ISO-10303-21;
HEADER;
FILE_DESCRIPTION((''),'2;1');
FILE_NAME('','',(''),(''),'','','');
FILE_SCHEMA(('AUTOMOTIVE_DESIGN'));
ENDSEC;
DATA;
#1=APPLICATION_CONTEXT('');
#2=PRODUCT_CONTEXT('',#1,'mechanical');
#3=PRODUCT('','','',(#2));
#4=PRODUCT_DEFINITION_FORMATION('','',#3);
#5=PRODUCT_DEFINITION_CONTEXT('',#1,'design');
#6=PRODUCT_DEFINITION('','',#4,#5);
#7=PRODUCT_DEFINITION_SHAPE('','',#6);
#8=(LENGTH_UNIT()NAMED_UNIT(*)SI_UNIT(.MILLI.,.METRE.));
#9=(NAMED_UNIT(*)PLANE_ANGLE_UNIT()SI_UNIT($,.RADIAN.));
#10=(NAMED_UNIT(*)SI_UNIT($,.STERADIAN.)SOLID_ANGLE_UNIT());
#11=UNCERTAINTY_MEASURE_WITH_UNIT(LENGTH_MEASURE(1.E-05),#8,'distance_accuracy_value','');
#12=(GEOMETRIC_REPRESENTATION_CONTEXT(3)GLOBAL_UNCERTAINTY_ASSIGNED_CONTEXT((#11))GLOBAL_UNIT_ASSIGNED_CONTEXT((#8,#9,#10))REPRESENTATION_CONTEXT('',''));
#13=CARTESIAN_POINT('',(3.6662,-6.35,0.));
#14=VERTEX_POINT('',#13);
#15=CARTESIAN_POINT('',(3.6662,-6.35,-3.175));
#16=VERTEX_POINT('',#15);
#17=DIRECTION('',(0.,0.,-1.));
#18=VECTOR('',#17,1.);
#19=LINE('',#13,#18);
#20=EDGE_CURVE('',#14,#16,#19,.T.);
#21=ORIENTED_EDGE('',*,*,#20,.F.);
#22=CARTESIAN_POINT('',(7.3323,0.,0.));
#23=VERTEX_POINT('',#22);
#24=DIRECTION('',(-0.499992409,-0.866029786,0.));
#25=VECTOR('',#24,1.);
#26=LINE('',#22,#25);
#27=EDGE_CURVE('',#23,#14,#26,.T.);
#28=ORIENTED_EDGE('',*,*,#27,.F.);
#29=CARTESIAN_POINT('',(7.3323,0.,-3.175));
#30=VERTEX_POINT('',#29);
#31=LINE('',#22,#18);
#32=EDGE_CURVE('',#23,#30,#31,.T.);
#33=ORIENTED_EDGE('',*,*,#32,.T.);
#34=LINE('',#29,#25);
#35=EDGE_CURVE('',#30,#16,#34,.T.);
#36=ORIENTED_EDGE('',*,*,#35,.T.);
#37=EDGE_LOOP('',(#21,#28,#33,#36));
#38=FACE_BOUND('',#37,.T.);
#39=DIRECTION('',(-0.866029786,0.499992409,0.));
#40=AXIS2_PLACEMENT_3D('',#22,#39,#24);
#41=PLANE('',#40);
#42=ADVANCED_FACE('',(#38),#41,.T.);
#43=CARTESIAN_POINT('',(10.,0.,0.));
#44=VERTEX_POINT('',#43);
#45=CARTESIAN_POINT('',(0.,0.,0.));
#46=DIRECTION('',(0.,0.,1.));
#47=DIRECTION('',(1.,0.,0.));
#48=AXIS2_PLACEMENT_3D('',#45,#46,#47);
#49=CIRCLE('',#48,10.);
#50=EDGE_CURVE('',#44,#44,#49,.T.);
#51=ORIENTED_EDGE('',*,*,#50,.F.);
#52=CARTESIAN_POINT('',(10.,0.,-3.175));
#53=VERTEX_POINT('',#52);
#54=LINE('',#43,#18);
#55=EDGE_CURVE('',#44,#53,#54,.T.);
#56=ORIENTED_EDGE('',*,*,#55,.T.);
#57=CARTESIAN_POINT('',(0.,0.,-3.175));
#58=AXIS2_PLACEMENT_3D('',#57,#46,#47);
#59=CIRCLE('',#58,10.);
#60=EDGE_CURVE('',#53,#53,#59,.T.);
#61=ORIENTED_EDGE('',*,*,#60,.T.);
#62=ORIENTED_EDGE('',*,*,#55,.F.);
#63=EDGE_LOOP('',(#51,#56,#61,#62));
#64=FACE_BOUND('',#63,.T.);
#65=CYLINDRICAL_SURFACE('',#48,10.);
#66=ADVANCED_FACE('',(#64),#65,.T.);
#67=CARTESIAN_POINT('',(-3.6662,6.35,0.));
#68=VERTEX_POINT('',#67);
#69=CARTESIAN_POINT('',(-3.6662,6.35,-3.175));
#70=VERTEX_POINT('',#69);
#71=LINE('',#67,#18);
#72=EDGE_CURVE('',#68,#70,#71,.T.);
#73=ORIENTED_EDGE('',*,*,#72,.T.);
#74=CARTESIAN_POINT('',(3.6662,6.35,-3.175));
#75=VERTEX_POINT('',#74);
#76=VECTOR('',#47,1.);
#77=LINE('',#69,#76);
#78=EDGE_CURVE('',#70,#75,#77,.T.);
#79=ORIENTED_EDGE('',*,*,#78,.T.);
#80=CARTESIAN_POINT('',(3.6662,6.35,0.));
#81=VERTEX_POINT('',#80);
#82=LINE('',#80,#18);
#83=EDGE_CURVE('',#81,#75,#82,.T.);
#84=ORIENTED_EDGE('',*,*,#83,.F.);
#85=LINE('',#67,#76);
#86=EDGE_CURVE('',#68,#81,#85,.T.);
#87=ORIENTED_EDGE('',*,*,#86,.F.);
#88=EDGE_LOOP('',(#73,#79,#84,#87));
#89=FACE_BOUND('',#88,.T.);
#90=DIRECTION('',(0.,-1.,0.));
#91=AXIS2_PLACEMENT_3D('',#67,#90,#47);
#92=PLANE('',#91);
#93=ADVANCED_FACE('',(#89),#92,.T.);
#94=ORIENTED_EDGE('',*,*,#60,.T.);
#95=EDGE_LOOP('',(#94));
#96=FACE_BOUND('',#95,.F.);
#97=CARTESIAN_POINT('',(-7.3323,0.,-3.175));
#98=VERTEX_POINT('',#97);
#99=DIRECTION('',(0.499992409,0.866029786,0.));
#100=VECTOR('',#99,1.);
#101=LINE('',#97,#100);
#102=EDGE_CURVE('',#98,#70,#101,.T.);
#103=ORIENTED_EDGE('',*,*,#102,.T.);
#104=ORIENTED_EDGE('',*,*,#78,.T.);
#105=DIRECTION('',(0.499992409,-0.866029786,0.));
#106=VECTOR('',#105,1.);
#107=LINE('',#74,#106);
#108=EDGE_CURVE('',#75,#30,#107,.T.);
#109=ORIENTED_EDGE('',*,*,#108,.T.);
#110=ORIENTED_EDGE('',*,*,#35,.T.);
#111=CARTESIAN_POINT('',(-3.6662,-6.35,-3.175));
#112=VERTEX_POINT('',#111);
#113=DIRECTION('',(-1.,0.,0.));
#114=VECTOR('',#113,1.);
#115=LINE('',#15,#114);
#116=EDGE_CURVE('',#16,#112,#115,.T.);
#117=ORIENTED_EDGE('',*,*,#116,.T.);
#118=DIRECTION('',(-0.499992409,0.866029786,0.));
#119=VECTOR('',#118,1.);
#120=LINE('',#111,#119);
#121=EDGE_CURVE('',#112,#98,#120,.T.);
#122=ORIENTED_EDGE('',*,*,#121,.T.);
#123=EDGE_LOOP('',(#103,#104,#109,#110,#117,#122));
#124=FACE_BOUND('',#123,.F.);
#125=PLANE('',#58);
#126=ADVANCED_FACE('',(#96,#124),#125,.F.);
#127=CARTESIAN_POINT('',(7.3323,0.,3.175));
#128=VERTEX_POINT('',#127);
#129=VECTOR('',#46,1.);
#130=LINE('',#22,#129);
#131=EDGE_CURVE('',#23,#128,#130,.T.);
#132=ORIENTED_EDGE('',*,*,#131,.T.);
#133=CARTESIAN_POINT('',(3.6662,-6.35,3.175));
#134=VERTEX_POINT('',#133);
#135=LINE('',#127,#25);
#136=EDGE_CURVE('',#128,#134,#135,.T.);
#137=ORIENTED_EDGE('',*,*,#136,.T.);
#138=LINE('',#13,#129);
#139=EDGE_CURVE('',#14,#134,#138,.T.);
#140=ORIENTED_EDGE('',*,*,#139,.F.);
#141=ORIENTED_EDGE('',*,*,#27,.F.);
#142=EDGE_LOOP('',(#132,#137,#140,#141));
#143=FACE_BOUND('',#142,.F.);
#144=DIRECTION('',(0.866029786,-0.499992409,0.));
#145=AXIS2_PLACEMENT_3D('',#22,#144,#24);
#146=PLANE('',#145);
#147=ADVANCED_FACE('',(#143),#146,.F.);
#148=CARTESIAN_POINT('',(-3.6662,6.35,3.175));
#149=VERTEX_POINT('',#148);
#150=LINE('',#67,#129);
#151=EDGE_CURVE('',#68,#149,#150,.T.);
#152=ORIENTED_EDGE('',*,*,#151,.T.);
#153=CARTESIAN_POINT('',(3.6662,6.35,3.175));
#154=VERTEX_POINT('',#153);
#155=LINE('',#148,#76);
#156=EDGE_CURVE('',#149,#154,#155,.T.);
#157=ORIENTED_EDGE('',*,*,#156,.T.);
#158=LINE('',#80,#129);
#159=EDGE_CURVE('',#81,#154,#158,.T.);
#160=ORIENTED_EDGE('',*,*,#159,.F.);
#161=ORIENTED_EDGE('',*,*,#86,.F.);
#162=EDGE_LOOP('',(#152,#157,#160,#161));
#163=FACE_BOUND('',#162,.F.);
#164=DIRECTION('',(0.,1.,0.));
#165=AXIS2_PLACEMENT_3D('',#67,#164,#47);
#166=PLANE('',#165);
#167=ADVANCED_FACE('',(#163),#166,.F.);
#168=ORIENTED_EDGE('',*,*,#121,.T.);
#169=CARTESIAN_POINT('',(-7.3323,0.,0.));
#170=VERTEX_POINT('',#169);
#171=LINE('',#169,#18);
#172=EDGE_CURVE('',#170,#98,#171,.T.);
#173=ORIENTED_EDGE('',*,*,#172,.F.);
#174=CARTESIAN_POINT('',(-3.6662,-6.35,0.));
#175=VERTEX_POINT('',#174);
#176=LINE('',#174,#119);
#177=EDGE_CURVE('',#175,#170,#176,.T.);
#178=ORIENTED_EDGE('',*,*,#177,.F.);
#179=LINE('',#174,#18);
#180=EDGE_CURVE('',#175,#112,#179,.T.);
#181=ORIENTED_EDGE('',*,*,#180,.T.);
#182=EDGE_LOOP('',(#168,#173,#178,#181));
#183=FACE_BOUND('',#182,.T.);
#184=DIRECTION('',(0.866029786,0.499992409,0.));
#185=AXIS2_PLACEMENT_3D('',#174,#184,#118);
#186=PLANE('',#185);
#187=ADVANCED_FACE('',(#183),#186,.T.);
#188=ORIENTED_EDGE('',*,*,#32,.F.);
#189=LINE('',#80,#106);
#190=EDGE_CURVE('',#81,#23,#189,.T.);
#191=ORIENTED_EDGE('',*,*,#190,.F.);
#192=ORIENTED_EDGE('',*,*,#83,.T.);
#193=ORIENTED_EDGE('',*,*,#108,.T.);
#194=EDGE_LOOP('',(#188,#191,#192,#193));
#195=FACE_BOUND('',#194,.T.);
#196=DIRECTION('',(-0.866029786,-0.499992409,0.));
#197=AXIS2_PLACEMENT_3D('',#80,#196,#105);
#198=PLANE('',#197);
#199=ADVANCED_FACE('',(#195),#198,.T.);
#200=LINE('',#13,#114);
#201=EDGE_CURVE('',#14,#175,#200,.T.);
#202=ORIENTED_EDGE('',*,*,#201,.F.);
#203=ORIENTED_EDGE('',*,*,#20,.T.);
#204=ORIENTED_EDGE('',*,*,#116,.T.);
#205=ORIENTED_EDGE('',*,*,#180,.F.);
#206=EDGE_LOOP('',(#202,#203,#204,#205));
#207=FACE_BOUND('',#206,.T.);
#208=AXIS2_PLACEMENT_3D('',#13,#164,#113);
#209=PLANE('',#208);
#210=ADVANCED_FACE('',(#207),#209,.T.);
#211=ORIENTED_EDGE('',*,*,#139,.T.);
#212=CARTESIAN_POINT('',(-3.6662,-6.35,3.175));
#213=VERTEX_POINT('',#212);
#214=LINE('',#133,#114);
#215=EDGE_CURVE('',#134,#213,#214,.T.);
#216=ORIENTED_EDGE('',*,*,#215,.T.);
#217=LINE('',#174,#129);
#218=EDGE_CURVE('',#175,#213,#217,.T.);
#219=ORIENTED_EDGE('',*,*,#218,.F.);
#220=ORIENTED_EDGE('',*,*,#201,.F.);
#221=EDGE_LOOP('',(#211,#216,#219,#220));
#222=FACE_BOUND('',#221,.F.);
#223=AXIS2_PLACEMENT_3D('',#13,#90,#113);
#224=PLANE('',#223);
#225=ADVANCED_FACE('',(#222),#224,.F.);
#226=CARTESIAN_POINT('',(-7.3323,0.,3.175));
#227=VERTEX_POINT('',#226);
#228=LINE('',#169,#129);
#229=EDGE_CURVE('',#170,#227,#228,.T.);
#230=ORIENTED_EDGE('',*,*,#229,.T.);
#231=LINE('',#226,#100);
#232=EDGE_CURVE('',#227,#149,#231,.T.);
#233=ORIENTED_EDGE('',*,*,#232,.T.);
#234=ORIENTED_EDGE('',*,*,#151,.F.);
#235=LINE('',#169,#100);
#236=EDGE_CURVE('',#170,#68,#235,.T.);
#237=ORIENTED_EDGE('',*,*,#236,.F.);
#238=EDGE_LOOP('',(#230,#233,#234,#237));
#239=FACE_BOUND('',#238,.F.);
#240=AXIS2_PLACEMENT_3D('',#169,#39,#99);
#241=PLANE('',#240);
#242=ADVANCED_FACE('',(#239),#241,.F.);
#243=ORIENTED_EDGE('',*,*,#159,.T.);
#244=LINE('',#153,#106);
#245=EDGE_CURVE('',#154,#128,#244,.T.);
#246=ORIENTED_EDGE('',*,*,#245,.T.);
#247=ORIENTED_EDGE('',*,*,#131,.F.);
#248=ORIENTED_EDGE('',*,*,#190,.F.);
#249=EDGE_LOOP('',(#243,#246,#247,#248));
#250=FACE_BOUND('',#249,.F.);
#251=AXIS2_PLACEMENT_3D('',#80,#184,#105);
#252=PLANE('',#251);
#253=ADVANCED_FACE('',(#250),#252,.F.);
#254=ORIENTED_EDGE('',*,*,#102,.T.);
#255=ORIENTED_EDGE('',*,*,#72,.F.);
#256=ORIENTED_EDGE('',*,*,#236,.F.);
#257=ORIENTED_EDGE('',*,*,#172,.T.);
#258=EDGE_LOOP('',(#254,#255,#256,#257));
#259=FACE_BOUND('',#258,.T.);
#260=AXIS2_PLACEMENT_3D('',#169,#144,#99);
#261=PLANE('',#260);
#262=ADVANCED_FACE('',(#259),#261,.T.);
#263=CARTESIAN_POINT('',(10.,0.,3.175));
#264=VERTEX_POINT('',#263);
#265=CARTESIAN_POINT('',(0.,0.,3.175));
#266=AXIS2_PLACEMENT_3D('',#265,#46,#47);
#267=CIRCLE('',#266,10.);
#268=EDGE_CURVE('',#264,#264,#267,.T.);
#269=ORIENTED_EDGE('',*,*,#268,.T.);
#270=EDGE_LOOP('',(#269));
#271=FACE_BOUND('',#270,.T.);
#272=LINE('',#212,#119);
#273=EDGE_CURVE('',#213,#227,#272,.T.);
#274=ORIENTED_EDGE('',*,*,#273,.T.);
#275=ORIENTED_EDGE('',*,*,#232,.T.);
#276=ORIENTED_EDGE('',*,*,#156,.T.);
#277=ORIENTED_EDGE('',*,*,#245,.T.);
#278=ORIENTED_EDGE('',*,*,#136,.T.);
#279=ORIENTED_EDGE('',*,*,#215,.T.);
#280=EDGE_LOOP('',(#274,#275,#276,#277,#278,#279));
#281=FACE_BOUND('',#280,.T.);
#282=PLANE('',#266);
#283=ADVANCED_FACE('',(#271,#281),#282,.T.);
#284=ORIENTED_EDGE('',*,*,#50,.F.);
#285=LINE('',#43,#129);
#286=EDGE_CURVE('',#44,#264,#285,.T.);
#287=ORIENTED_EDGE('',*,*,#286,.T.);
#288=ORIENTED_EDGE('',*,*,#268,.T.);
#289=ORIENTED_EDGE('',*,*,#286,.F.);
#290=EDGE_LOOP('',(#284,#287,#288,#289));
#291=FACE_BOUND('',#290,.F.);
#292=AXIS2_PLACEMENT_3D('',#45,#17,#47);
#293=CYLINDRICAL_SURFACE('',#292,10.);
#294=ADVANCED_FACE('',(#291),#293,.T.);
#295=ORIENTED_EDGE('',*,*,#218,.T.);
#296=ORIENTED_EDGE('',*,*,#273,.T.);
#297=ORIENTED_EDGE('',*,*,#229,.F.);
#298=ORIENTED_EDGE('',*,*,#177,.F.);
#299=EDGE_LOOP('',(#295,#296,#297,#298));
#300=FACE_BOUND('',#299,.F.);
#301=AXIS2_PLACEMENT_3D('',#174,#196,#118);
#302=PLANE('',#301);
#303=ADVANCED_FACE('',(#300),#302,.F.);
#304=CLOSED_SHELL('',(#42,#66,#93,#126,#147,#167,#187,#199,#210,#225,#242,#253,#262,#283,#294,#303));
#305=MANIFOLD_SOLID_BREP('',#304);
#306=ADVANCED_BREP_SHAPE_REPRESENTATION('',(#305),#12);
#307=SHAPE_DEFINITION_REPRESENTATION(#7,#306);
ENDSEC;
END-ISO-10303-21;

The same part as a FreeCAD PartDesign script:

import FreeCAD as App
import Part
import Sketcher
Q = App.Units.Quantity


def add_polygon(sketch, points):
    """Adds a closed chain of lines whose ends are joined by coincident constraints."""
    first, n = sketch.GeometryCount, len(points)
    for a, b in zip(points, points[1:] + points[:1]):
        sketch.addGeometry(Part.LineSegment(App.Vector(*a, 0), App.Vector(*b, 0)), False)
    for i in range(n):
        sketch.addConstraint(Sketcher.Constraint("Coincident", first + i, 2, first + (i + 1) % n, 1))

doc = App.newDocument("Part")
body = doc.addObject("PartDesign::Body", "Body")

sketch1 = body.newObject("Sketcher::SketchObject", "Sketch")
sketch1.AttachmentSupport = (doc.getObject("XY_Plane"), [""])
sketch1.MapMode = "FlatFace"
sketch1.addGeometry(Part.Circle(App.Vector(0, 0, 0), App.Vector(0, 0, 1), 10), False)
add_polygon(sketch1, [(-7, 0), (-4, 6), (4, 6), (7, 0), (4, -6), (-4, -6)])
sketch1.addConstraint([
    Sketcher.Constraint("Horizontal", 2),
    Sketcher.Constraint("Horizontal", 5),
    Sketcher.Constraint("Coincident", 0, 3, -1, 1),
    Sketcher.Constraint("Symmetric", 1, 2, 4, 2, -1, 1),
    Sketcher.Constraint("Symmetric", 3, 2, 6, 2, -1, 1),
    Sketcher.Constraint("PointOnObject", 3, 2, -1),
    Sketcher.Constraint("Parallel", 3, 6),
    Sketcher.Constraint("Vertical", 2, 2, 4, 2),
    Sketcher.Constraint("Diameter", 0, Q("0.7874 in")),
    Sketcher.Constraint("DistanceY", 4, 2, 2, 2, Q("0.5 in")),
    Sketcher.Constraint("Angle", 1, Q("60.0005 deg")),
    Sketcher.Constraint("DistanceX", 1, 2, 3, 2, Q("0.433 in")),
])
pad1 = body.newObject("PartDesign::Pad", "Pad")
pad1.Profile = sketch1
pad1.Length = Q("0.25 in")
pad1.Midplane = True

doc.recompute()
